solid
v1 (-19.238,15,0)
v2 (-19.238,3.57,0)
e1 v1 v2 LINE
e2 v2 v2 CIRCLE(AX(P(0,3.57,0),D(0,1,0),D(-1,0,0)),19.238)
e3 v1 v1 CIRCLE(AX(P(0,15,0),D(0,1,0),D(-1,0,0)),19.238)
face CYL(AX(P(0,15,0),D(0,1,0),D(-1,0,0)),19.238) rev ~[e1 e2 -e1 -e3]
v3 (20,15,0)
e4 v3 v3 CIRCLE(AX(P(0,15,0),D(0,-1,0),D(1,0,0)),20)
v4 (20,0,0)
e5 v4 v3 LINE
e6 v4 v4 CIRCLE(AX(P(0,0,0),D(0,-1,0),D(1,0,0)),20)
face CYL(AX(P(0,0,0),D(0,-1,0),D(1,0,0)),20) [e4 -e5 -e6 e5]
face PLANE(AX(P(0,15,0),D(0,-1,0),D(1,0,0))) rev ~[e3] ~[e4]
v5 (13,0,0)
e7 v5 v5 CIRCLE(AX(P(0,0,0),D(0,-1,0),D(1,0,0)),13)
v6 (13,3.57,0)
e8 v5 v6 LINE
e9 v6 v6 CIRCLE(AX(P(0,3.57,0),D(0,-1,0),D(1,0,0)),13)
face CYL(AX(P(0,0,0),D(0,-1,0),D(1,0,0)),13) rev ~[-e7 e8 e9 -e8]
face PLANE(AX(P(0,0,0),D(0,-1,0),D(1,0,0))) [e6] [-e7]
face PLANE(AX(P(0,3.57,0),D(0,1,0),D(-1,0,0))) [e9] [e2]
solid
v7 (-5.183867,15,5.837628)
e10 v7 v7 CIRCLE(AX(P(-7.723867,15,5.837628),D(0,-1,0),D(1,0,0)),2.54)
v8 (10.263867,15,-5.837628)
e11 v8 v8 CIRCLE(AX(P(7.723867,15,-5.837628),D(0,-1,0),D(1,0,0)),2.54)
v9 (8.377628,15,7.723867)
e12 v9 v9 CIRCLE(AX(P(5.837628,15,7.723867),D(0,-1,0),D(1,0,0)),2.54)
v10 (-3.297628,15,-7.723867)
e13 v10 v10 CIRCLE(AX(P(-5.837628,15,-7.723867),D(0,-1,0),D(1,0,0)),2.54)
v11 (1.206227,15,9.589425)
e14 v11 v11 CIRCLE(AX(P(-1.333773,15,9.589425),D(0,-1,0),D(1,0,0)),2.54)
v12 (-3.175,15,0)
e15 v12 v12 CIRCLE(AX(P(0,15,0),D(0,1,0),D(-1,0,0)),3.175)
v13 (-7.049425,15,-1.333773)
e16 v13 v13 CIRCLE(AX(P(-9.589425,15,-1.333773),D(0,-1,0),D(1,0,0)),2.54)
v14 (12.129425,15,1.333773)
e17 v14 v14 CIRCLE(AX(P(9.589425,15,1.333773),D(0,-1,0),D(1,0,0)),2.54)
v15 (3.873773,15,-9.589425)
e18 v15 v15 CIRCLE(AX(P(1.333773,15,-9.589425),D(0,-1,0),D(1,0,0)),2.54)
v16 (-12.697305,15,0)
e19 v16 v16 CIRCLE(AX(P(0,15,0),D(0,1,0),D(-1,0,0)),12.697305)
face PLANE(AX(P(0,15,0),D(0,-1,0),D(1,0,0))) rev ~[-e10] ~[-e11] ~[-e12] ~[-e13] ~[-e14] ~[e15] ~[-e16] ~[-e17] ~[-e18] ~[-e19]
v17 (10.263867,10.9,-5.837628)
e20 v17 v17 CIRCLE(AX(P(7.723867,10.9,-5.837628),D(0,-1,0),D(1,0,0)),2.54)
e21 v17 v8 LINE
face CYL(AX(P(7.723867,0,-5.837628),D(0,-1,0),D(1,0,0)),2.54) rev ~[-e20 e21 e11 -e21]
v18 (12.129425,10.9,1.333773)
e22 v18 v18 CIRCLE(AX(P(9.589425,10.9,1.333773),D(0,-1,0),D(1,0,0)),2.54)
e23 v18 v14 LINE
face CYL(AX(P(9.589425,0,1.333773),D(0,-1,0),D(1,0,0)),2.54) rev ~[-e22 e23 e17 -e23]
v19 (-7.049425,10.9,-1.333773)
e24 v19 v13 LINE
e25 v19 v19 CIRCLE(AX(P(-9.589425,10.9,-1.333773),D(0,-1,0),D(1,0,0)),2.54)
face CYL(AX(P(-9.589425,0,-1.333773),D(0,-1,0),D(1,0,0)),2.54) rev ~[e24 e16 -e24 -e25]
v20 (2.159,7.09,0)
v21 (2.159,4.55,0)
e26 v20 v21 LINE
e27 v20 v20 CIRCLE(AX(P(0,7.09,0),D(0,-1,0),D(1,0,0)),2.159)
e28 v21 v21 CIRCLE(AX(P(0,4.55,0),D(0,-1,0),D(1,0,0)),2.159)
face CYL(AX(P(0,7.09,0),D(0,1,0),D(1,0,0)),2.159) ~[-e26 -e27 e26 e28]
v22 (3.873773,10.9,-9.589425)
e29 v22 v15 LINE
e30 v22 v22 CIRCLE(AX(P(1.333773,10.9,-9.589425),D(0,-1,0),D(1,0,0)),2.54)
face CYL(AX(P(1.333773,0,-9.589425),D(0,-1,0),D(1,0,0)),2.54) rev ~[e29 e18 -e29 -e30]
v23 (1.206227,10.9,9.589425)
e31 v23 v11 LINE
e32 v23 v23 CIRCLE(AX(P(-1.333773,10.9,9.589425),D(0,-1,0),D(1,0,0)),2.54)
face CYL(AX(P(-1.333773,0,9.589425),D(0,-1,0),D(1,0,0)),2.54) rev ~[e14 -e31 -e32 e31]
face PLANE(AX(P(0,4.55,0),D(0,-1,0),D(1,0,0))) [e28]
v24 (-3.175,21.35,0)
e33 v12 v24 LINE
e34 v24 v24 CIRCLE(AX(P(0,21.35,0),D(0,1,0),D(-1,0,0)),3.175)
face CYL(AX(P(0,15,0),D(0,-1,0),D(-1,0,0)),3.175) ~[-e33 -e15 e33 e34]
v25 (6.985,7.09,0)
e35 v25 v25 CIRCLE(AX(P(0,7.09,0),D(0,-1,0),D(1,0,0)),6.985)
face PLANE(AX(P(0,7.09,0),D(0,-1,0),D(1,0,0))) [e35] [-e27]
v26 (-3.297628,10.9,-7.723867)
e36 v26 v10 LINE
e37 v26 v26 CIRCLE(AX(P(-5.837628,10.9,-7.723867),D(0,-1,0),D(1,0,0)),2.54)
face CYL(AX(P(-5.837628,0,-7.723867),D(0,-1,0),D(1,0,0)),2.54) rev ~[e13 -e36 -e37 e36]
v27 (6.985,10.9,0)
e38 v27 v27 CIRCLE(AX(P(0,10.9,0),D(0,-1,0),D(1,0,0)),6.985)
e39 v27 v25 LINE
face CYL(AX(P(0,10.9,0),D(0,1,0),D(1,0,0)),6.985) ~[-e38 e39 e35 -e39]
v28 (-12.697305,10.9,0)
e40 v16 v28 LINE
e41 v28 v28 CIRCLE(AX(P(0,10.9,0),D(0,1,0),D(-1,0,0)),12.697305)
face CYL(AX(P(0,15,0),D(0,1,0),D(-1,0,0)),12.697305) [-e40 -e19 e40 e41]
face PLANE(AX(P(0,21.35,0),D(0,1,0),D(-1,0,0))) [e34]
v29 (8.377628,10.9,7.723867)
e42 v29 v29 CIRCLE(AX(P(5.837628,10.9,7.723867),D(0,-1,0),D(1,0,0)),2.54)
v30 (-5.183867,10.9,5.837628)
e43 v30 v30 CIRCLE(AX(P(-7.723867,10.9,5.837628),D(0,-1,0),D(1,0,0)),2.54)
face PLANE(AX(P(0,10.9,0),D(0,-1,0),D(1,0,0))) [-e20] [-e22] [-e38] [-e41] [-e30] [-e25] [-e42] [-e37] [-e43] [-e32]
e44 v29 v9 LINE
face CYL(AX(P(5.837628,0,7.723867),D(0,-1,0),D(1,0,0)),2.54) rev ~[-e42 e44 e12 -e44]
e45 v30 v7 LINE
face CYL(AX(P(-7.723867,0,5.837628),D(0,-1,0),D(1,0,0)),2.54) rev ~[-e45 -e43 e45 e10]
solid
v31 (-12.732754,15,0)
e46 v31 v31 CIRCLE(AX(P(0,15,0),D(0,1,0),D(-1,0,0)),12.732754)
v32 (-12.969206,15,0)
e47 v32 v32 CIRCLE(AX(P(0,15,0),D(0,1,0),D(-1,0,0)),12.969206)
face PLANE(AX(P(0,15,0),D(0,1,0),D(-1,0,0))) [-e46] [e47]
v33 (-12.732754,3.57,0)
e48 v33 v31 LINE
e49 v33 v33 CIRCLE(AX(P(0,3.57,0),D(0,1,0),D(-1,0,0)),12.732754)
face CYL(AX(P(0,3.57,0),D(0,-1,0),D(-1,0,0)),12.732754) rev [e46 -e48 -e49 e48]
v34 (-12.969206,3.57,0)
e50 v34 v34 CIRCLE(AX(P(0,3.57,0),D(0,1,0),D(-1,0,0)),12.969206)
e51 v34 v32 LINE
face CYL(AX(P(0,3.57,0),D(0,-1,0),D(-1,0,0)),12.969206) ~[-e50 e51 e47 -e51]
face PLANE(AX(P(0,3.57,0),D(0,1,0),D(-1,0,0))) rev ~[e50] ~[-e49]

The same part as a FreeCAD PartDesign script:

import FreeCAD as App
import Part
import Sketcher
from FreeCAD import Vector
Q = App.Units.Quantity

doc = App.newDocument("Part")
params = doc.addObject("Spreadsheet::Sheet", "Params")
for row, (alias, value) in enumerate([
    ("sketch1_diameter", "0.2 in"),
    ("pad1_length", "15 mm"),
    ("pocket1_length", "10.9 mm"),
    ("sketch3_diameter", "0.55 in"),
    ("pad2_length", "0.15 in"),
    ("sketch4_diameter", "0.17 in"),
    ("pad3_length", "0.1 in"),
    ("pocket2_length", "0.45 in"),
    ("sketch6_diameter", "0.25 in"),
    ("pad4_length", "0.25 in"),
    ("pad5_length", "0.45 in"),
], start=1):
    params.set(f"A{row}", alias)
    params.set(f"B{row}", "=" + value)
    params.setAlias(f"B{row}", alias)

body = doc.addObject("PartDesign::Body", "Body")
body.AllowCompound = True

sketch1 = body.newObject("Sketcher::SketchObject", "Sketch")
sketch1.AttachmentSupport = (doc.getObject("XZ_Plane"), [""])
sketch1.MapMode = "FlatFace"
sketch1.addGeometry([
    Part.Circle(Vector(0, 0, 0), Vector(0, 0, 1), 20),
    Part.Circle(Vector(-5.8, -7.7, 0), Vector(0, 0, 1), 2.5),
    Part.Circle(Vector(-9.6, -1.3, 0), Vector(0, 0, 1), 2.5),
    Part.Circle(Vector(1.3, -9.6, 0), Vector(0, 0, 1), 2.5),
    Part.Circle(Vector(7.7, -5.8, 0), Vector(0, 0, 1), 2.5),
    Part.Circle(Vector(-7.7, 5.8, 0), Vector(0, 0, 1), 2.5),
    Part.Circle(Vector(-1.3, 9.6, 0), Vector(0, 0, 1), 2.5),
    Part.Circle(Vector(9.6, 1.3, 0), Vector(0, 0, 1), 2.5),
    Part.Circle(Vector(5.8, 7.7, 0), Vector(0, 0, 1), 2.5),
], False)
sketch1.addConstraint([
    Sketcher.Constraint("Coincident", 0, 3, -1, 1),
    Sketcher.Constraint("Equal", 1, 2),
    Sketcher.Constraint("Equal", 2, 3),
    Sketcher.Constraint("Equal", 3, 4),
    Sketcher.Constraint("Equal", 4, 5),
    Sketcher.Constraint("Equal", 5, 6),
    Sketcher.Constraint("Equal", 6, 7),
    Sketcher.Constraint("Equal", 7, 8),
    Sketcher.Constraint("Symmetric", 4, 3, 5, 3, -1, 1),
    Sketcher.Constraint("Symmetric", 3, 3, 6, 3, -1, 1),
    Sketcher.Constraint("Symmetric", 2, 3, 7, 3, -1, 1),
    Sketcher.Constraint("Symmetric", 1, 3, 8, 3, -1, 1),
    Sketcher.Constraint("Diameter", 1, Q("0.2 in")),
    Sketcher.Constraint("Diameter", 0, 40.0),
    Sketcher.Constraint("DistanceX", 5, 3, 3, 3, Q("0.3566 in")),
    Sketcher.Constraint("DistanceX", 1, 3, 3, 3, 7.171401),
    Sketcher.Constraint("DistanceX", 2, 3, 3, 3, 10.923198),
    Sketcher.Constraint("DistanceY", 2, 3, 5, 3, 7.171401),
    Sketcher.Constraint("DistanceY", 2, 3, 6, 3, 10.923198),
    Sketcher.Constraint("DistanceY", 1, 3, 4, 3, 1.886239),
    Sketcher.Constraint("DistanceX", 1, 3, -1, 1, 5.837628),
    Sketcher.Constraint("DistanceY", 1, 3, -1, 1, 7.723867),
])
sketch1.setExpression("Constraints[12]", "Params.sketch1_diameter")
pad1 = body.newObject("PartDesign::Pad", "Pad")
pad1.Profile = sketch1
pad1.setExpression("Length", "Params.pad1_length")
pad1.Reversed = True

sketch2 = body.newObject("Sketcher::SketchObject", "Sketch001")
sketch2.AttachmentSupport = (doc.getObject("XZ_Plane"), [""])
sketch2.MapMode = "FlatFace"
sketch2.addGeometry(Part.Circle(Vector(0, 0, 0), Vector(0, 0, 1), 13), False)
sketch2.addConstraint([
    Sketcher.Constraint("Coincident", 0, 3, -1, 1),
    Sketcher.Constraint("Diameter", 0, 26.0),
])
pocket1 = body.newObject("PartDesign::Pocket", "Pocket")
pocket1.Profile = sketch2
pocket1.setExpression("Length", "Params.pocket1_length")

sketch3 = body.newObject("Sketcher::SketchObject", "Sketch002")
sketch3.AttachmentSupport = (doc.getObject("XZ_Plane"), [""])
sketch3.MapMode = "FlatFace"
sketch3.AttachmentOffset = App.Placement(Vector(0, 0, -10.9), App.Rotation())
sketch3.addGeometry(Part.Circle(Vector(0, 0, 0), Vector(0, 0, 1), 7), False)
sketch3.addConstraint([
    Sketcher.Constraint("Coincident", 0, 3, -1, 1),
    Sketcher.Constraint("Diameter", 0, Q("0.55 in")),
])
sketch3.setExpression("Constraints[1]", "Params.sketch3_diameter")
pad2 = body.newObject("PartDesign::Pad", "Pad001")
pad2.Profile = sketch3
pad2.setExpression("Length", "Params.pad2_length")

sketch4 = body.newObject("Sketcher::SketchObject", "Sketch003")
sketch4.AttachmentSupport = (doc.getObject("XZ_Plane"), [""])
sketch4.MapMode = "FlatFace"
sketch4.AttachmentOffset = App.Placement(Vector(0, 0, -7.09), App.Rotation())
sketch4.addGeometry(Part.Circle(Vector(0, 0, 0), Vector(0, 0, 1), 2.2), False)
sketch4.addConstraint([
    Sketcher.Constraint("Coincident", 0, 3, -1, 1),
    Sketcher.Constraint("Diameter", 0, Q("0.17 in")),
])
sketch4.setExpression("Constraints[1]", "Params.sketch4_diameter")
pad3 = body.newObject("PartDesign::Pad", "Pad002")
pad3.Profile = sketch4
pad3.setExpression("Length", "Params.pad3_length")

sketch5 = body.newObject("Sketcher::SketchObject", "Sketch004")
sketch5.AttachmentSupport = (doc.getObject("XZ_Plane"), [""])
sketch5.MapMode = "FlatFace"
sketch5.AttachmentOffset = App.Placement(Vector(0, 0, -15), App.Rotation())
sketch5.addGeometry([
    Part.Circle(Vector(0, 0, 0), Vector(0, 0, 1), 19),
    Part.Circle(Vector(0, 0, 0), Vector(0, 0, 1), 13),
], False)
sketch5.addConstraint([
    Sketcher.Constraint("Coincident", 0, 3, -1, 1),
    Sketcher.Constraint("Coincident", 1, 3, -1, 1),
    Sketcher.Constraint("Diameter", 0, 38.476),
    Sketcher.Constraint("Diameter", 1, 25.39461),
])
pocket2 = body.newObject("PartDesign::Pocket", "Pocket001")
pocket2.Profile = sketch5
pocket2.setExpression("Length", "Params.pocket2_length")
pocket2.Reversed = True

sketch6 = body.newObject("Sketcher::SketchObject", "Sketch005")
sketch6.AttachmentSupport = (doc.getObject("XZ_Plane"), [""])
sketch6.MapMode = "FlatFace"
sketch6.AttachmentOffset = App.Placement(Vector(0, 0, -15), App.Rotation())
sketch6.addGeometry(Part.Circle(Vector(0, 0, 0), Vector(0, 0, 1), 3.2), False)
sketch6.addConstraint([
    Sketcher.Constraint("Coincident", 0, 3, -1, 1),
    Sketcher.Constraint("Diameter", 0, Q("0.25 in")),
])
sketch6.setExpression("Constraints[1]", "Params.sketch6_diameter")
pad4 = body.newObject("PartDesign::Pad", "Pad003")
pad4.Profile = sketch6
pad4.setExpression("Length", "Params.pad4_length")
pad4.Reversed = True
body2 = doc.addObject("PartDesign::Body", "Body001")

sketch7 = body2.newObject("Sketcher::SketchObject", "Sketch006")
sketch7.AttachmentSupport = (doc.getObject("XZ_Plane001"), [""])
sketch7.MapMode = "FlatFace"
sketch7.AttachmentOffset = App.Placement(Vector(0, 0, -3.57), App.Rotation())
sketch7.addGeometry([
    Part.Circle(Vector(0, 0, 0), Vector(0, 0, 1), 13),
    Part.Circle(Vector(0, 0, 0), Vector(0, 0, 1), 13),
], False)
sketch7.addConstraint([
    Sketcher.Constraint("Coincident", 0, 3, -1, 1),
    Sketcher.Constraint("Coincident", 1, 3, -1, 1),
    Sketcher.Constraint("Diameter", 0, 25.938412),
    Sketcher.Constraint("Diameter", 1, 25.465508),
])
pad5 = body2.newObject("PartDesign::Pad", "Pad004")
pad5.Profile = sketch7
pad5.setExpression("Length", "Params.pad5_length")
pad5.Reversed = True

doc.recompute()
